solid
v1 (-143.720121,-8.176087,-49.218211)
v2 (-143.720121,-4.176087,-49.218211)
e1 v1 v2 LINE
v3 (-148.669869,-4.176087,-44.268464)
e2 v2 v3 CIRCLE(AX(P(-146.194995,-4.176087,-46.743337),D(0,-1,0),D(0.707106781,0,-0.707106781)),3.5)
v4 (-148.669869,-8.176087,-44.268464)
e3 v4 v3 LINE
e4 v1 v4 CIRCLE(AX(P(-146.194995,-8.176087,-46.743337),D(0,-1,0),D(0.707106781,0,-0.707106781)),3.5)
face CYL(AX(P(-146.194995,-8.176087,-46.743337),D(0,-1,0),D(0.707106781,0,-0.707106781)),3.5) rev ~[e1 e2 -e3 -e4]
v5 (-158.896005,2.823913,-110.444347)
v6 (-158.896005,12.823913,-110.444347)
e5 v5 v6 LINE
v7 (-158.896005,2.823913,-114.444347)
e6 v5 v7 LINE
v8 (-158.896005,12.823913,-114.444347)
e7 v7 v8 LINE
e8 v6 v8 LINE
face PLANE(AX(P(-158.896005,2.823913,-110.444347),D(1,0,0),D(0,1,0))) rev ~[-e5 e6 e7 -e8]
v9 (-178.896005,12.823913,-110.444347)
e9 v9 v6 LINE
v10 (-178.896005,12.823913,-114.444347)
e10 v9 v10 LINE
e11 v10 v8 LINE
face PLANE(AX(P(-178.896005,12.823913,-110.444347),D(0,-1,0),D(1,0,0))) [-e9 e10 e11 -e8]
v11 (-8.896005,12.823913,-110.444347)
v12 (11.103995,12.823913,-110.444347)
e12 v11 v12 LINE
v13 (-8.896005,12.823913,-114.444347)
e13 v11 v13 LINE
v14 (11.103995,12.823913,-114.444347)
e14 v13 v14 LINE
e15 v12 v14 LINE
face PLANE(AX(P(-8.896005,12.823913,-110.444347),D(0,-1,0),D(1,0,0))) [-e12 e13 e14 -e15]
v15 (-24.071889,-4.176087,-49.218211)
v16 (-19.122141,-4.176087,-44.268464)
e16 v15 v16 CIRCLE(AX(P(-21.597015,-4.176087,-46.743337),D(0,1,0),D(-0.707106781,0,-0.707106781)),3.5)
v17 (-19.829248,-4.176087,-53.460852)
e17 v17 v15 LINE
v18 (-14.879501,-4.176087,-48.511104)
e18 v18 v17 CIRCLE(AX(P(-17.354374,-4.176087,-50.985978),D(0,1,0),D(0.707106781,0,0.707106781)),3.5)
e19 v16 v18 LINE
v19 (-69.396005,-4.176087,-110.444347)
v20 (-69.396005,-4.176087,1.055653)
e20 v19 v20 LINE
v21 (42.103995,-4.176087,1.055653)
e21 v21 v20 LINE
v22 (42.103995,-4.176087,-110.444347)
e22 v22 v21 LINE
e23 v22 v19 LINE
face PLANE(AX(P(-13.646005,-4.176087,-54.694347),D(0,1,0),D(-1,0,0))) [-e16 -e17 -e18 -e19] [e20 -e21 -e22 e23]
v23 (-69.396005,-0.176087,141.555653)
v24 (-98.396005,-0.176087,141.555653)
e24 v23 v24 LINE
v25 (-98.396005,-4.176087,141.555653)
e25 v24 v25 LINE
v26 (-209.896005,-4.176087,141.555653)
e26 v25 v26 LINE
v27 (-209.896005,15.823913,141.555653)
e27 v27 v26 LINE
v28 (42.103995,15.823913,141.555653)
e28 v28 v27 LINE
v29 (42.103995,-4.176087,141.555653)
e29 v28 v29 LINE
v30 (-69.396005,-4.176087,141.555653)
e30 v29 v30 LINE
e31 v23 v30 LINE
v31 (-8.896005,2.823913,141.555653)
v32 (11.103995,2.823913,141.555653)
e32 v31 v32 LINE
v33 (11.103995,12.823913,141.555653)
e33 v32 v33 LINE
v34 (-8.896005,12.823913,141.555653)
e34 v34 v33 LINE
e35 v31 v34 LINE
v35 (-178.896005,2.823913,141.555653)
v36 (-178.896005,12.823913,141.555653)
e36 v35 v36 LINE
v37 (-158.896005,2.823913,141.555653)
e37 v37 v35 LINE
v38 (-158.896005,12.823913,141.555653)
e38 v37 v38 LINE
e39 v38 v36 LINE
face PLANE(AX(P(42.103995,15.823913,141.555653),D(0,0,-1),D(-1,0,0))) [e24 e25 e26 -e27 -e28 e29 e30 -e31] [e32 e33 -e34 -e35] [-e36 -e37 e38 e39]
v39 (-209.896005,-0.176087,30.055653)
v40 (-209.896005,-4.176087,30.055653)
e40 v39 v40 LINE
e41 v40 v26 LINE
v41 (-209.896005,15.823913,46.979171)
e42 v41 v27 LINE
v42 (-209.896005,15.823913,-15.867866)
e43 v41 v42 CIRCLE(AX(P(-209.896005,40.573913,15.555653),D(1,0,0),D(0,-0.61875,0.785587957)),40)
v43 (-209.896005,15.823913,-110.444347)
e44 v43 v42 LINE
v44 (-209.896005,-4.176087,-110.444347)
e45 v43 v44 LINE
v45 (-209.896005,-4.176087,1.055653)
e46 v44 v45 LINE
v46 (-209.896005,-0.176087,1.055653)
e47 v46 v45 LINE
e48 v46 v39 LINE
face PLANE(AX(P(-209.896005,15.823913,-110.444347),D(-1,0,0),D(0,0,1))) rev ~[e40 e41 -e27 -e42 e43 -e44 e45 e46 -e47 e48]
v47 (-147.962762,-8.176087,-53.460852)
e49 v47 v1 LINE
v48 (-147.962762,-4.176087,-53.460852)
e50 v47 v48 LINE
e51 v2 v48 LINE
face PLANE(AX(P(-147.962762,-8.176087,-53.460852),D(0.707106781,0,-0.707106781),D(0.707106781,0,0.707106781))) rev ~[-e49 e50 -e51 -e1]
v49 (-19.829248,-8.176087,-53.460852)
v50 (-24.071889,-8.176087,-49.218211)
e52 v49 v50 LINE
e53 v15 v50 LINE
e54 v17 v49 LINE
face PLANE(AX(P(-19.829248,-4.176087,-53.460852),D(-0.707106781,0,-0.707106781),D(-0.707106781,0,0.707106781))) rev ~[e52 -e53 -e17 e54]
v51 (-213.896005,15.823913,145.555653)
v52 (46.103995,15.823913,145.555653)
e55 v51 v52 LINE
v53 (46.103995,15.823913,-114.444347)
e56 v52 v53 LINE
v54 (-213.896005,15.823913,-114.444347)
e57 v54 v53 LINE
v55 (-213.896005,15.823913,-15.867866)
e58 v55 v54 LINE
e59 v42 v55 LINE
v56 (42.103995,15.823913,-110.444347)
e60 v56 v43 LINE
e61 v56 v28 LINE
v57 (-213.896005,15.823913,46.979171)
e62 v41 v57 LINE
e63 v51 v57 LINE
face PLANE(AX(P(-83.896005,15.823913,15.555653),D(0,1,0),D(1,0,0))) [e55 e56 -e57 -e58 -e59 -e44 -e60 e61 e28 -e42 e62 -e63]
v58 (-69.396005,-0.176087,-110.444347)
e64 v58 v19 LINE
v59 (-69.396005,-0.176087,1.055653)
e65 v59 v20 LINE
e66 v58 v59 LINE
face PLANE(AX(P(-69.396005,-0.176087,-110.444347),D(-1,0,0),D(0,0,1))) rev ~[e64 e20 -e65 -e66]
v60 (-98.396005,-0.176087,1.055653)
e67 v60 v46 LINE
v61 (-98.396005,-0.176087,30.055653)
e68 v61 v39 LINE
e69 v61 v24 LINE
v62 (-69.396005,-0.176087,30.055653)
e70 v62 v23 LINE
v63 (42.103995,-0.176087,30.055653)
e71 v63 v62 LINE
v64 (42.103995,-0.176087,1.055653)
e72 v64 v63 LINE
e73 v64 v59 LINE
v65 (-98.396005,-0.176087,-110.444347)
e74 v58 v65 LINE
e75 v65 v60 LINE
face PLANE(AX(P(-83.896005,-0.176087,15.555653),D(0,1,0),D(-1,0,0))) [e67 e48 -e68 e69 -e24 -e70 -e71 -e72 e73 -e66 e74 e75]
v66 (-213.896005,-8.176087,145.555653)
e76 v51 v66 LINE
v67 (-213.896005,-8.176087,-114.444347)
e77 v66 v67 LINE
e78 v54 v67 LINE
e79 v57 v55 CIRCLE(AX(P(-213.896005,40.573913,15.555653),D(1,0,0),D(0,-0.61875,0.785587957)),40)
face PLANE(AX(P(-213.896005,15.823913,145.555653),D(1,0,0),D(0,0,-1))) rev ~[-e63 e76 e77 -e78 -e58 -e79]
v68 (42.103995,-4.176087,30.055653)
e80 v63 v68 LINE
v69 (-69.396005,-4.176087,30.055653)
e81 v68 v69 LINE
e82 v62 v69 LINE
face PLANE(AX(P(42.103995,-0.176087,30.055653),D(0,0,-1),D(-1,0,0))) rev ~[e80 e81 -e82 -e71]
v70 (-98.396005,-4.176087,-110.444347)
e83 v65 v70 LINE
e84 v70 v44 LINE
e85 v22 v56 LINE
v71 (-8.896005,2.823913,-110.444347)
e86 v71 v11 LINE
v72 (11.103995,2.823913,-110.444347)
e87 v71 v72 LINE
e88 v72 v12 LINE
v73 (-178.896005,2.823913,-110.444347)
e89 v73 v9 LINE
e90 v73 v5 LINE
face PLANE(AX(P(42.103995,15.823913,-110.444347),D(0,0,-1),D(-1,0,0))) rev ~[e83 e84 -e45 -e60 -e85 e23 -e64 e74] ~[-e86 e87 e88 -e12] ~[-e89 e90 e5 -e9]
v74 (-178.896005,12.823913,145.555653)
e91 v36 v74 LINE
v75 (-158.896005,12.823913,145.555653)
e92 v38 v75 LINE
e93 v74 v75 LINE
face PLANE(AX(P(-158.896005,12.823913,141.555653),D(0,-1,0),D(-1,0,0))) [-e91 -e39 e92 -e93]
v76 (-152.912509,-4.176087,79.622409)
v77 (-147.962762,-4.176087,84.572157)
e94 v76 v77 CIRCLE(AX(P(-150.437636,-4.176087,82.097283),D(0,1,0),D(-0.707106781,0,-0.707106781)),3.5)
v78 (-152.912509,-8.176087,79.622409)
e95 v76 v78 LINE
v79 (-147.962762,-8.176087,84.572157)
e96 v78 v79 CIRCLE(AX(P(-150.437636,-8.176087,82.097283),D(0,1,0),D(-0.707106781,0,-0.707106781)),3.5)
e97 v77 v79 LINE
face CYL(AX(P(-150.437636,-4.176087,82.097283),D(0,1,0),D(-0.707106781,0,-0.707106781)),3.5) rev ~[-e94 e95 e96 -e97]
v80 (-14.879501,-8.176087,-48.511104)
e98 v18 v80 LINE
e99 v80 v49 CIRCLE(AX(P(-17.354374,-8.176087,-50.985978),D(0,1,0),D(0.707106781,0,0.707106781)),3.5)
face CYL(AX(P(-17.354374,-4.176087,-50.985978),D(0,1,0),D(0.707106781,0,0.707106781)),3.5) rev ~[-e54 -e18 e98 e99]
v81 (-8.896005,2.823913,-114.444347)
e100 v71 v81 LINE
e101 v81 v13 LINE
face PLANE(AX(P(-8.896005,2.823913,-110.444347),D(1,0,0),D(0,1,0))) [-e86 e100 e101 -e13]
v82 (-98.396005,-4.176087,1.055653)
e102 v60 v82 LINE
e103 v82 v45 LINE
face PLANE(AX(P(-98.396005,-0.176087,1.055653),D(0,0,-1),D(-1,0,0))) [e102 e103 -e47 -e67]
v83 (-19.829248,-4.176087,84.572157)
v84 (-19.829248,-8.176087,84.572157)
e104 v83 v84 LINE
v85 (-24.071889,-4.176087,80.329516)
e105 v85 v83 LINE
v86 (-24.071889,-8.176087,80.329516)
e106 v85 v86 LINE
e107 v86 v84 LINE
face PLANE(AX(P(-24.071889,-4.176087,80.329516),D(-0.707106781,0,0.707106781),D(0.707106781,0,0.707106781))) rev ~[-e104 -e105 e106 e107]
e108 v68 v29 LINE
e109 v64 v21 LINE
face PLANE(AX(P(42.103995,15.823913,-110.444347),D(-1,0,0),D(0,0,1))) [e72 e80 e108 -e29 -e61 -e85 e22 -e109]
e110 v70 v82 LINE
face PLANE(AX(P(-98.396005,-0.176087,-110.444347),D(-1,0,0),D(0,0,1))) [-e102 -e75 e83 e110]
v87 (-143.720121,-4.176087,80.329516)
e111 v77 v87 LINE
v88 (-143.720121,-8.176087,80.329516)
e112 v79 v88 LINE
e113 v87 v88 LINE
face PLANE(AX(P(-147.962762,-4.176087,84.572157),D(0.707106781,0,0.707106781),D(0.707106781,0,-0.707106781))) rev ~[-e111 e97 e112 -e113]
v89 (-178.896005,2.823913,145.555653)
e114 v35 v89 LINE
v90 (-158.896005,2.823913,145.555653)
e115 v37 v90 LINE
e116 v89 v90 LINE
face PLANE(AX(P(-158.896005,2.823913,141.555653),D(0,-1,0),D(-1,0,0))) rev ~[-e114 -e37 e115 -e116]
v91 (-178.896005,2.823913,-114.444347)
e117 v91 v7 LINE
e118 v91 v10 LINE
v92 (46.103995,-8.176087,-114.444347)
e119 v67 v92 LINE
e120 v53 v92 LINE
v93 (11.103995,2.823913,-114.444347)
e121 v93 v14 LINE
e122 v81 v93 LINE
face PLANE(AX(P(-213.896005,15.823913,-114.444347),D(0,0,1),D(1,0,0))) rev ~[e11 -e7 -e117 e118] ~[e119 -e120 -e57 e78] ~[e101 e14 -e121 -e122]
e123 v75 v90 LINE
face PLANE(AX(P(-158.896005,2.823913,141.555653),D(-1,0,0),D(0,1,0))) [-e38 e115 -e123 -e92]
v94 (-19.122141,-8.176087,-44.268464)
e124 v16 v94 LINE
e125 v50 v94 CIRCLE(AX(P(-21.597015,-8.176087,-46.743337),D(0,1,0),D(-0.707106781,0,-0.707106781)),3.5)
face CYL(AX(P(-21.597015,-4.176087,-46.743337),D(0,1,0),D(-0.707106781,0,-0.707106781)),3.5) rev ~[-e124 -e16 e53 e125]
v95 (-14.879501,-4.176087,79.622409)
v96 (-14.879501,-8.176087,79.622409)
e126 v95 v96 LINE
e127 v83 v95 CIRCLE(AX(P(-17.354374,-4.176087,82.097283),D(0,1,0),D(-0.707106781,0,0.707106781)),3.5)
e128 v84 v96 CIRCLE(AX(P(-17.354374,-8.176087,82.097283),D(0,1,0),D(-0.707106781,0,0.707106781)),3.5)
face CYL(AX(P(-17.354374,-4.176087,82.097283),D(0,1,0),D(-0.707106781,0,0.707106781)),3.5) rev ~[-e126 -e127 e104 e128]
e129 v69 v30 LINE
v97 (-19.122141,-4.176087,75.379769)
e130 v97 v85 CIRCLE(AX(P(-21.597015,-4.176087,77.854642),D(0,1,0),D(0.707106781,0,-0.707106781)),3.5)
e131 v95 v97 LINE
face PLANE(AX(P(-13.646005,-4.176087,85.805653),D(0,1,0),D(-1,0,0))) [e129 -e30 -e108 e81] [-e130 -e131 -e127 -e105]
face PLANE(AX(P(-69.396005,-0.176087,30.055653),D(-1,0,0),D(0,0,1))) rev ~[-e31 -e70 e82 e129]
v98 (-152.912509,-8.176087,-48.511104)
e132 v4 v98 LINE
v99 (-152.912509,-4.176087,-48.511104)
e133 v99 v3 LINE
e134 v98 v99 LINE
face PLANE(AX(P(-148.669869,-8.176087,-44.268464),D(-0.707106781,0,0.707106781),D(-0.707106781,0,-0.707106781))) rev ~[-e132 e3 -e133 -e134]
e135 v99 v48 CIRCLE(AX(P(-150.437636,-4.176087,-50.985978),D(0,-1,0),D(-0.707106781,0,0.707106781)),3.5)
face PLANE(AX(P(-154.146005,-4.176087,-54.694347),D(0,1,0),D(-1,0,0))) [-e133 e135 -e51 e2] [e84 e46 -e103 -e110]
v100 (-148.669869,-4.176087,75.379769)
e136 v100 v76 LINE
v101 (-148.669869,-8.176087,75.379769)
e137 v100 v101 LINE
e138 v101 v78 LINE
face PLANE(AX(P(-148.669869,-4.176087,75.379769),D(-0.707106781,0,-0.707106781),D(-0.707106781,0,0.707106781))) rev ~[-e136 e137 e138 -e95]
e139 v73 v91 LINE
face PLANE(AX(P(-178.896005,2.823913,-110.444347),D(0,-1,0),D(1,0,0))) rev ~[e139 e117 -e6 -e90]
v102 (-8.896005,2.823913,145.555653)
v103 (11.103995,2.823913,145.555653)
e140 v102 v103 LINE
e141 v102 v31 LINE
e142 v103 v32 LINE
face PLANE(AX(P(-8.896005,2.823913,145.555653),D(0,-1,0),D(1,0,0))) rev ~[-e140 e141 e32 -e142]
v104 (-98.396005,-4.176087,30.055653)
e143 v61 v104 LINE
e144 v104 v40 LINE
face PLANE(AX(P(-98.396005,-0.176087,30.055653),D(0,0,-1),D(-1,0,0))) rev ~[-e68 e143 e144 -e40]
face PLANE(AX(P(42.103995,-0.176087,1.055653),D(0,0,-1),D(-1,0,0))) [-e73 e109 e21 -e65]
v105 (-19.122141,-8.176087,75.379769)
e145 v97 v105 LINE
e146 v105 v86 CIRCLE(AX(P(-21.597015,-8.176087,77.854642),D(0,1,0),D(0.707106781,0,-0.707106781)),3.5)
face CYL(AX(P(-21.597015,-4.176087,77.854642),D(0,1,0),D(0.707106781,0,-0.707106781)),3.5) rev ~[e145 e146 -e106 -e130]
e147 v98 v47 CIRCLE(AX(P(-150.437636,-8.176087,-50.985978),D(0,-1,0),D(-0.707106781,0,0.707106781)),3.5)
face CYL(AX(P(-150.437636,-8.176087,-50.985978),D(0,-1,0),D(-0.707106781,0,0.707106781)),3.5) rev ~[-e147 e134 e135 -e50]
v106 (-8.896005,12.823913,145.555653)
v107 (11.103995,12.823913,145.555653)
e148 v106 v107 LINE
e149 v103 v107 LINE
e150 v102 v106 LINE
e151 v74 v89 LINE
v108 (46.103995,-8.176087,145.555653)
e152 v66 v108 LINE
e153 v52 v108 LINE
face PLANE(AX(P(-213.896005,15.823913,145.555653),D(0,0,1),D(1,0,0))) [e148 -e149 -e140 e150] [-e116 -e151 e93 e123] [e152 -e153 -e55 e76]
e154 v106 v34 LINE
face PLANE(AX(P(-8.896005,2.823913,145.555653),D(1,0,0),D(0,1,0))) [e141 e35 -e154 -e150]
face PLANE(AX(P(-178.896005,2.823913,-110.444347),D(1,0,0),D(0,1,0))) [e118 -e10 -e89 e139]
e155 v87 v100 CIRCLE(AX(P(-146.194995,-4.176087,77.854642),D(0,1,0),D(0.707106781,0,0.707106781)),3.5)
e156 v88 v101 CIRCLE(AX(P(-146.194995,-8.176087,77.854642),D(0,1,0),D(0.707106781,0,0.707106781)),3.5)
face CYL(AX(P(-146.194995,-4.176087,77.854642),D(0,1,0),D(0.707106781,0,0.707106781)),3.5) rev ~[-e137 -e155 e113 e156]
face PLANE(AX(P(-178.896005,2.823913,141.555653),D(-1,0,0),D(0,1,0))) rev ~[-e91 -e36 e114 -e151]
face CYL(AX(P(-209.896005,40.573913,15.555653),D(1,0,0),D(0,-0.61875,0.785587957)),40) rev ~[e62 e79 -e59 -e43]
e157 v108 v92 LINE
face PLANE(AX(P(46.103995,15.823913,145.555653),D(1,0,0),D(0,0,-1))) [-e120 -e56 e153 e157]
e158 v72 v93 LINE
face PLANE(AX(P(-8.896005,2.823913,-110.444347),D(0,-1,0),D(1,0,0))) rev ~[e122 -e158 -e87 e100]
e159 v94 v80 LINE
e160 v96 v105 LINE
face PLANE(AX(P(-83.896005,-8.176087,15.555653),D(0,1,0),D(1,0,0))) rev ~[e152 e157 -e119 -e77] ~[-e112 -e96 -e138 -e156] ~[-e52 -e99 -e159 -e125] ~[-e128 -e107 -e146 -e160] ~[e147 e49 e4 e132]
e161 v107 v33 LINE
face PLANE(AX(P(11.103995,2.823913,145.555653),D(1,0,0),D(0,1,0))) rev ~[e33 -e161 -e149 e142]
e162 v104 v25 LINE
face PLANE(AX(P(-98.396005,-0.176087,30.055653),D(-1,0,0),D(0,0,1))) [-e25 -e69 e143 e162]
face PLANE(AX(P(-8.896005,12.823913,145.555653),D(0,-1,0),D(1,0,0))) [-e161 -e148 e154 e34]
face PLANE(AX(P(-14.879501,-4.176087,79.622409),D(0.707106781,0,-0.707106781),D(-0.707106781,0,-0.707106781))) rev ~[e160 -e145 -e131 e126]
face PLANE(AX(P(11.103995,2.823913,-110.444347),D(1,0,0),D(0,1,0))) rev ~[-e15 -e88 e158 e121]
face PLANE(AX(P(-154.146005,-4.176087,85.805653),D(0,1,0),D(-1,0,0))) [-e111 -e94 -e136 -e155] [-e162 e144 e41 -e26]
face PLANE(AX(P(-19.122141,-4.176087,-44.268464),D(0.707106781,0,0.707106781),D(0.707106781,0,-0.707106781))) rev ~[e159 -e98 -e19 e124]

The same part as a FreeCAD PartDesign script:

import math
import FreeCAD as App
import Part
import Sketcher

V = App.Vector
Q = App.Units.Quantity

doc = App.newDocument("Part")
params = doc.addObject("Spreadsheet::Sheet", "Params")
for row, (alias, value) in enumerate([
    ("sketch1_width", "260 mm"),
    ("pad1_length", "24 mm"),
    ("sketch2_width", "252 mm"),
    ("pocket1_length", "16 mm"),
    ("sketch3_width", "111.5 mm"),
    ("pocket2_length", "4 mm"),
    ("sketch4_width", "111.5 mm"),
    ("pocket3_length", "4 mm"),
    ("sketch5_width", "111.5 mm"),
    ("pocket4_length", "4 mm"),
    ("sketch6_width", "111.5 mm"),
    ("pocket5_length", "4 mm"),
    ("sketch7_radius", "40 mm"),
    ("sketch8_width", "20 mm"),
    ("sketch8_height", "10 mm"),
    ("sketch9_radius", "3.5 mm"),
    ("sketch9_length", "6 mm"),
    ("sketch10_radius", "3.5 mm"),
    ("sketch10_length", "6 mm"),
    ("sketch11_width", "20 mm"),
    ("sketch11_height", "10 mm"),
    ("sketch12_width", "20 mm"),
    ("sketch12_height", "10 mm"),
    ("sketch13_radius", "3.5 mm"),
    ("sketch13_length", "6 mm"),
    ("sketch14_width", "20 mm"),
    ("sketch14_height", "10 mm"),
    ("sketch15_radius", "3.5 mm"),
    ("sketch15_length", "6 mm"),
], start=1):
    params.set(f"A{row}", alias)
    params.set(f"B{row}", "=" + value)
    params.setAlias(f"B{row}", alias)

body = doc.addObject("PartDesign::Body", "Body")

sketch1 = body.newObject("Sketcher::SketchObject", "Sketch")
sketch1.AttachmentSupport = (doc.getObject("XZ_Plane"), [""])
sketch1.MapMode = "FlatFace"
sketch1.AttachmentOffset = App.Placement(V(0, 0, -15.823913), App.Rotation())
sketch1.addGeometry([
    Part.LineSegment(V(-213.896005, -114.444347, 0), V(-213.896005, 145.555653, 0)),
    Part.LineSegment(V(-213.896005, 145.555653, 0), V(46.103995, 145.555653, 0)),
    Part.LineSegment(V(46.103995, 145.555653, 0), V(46.103995, -114.444347, 0)),
    Part.LineSegment(V(46.103995, -114.444347, 0), V(-213.896005, -114.444347, 0)),
], False)
sketch1.addConstraint([
    Sketcher.Constraint("Coincident", 0, 2, 1, 1),
    Sketcher.Constraint("Coincident", 1, 2, 2, 1),
    Sketcher.Constraint("Coincident", 2, 2, 3, 1),
    Sketcher.Constraint("Coincident", 3, 2, 0, 1),
    Sketcher.Constraint("Vertical", 0),
    Sketcher.Constraint("Horizontal", 1),
    Sketcher.Constraint("Vertical", 2),
    Sketcher.Constraint("Horizontal", 3),
    Sketcher.Constraint("Equal", 3, 0),
    Sketcher.Constraint("DistanceX", 1, 1, 1, 2, Q("260 mm")),
    Sketcher.Constraint("DistanceX", 0, 2, -1, 1, Q("213.896005 mm")),
    Sketcher.Constraint("DistanceY", -1, 1, 0, 2, Q("145.555653 mm")),
])
sketch1.setExpression("Constraints[9]", "Params.sketch1_width")
pad1 = body.newObject("PartDesign::Pad", "Pad")
pad1.Profile = sketch1
pad1.setExpression("Length", "Params.pad1_length")

sketch2 = body.newObject("Sketcher::SketchObject", "Sketch001")
sketch2.AttachmentSupport = (doc.getObject("XZ_Plane"), [""])
sketch2.MapMode = "FlatFace"
sketch2.AttachmentOffset = App.Placement(V(0, 0, -15.823913), App.Rotation())
sketch2.addGeometry([
    Part.LineSegment(V(42.103995, 141.555653, 0), V(42.103995, -110.444347, 0)),
    Part.LineSegment(V(42.103995, -110.444347, 0), V(-209.896005, -110.444347, 0)),
    Part.LineSegment(V(-209.896005, -110.444347, 0), V(-209.896005, 141.555653, 0)),
    Part.LineSegment(V(-209.896005, 141.555653, 0), V(42.103995, 141.555653, 0)),
], False)
sketch2.addConstraint([
    Sketcher.Constraint("Coincident", 0, 2, 1, 1),
    Sketcher.Constraint("Coincident", 1, 2, 2, 1),
    Sketcher.Constraint("Coincident", 2, 2, 3, 1),
    Sketcher.Constraint("Coincident", 3, 2, 0, 1),
    Sketcher.Constraint("Vertical", 0),
    Sketcher.Constraint("Horizontal", 1),
    Sketcher.Constraint("Vertical", 2),
    Sketcher.Constraint("Horizontal", 3),
    Sketcher.Constraint("Equal", 3, 0),
    Sketcher.Constraint("DistanceX", 1, 2, 1, 1, Q("252 mm")),
    Sketcher.Constraint("DistanceX", -1, 1, 0, 2, Q("42.103995 mm")),
    Sketcher.Constraint("DistanceY", 0, 2, -1, 1, Q("110.444347 mm")),
])
sketch2.setExpression("Constraints[9]", "Params.sketch2_width")
pocket1 = body.newObject("PartDesign::Pocket", "Pocket")
pocket1.Profile = sketch2
pocket1.setExpression("Length", "Params.pocket1_length")
pocket1.Reversed = True

sketch3 = body.newObject("Sketcher::SketchObject", "Sketch002")
sketch3.AttachmentSupport = (doc.getObject("XZ_Plane"), [""])
sketch3.MapMode = "FlatFace"
sketch3.AttachmentOffset = App.Placement(V(0, 0, 0.176087), App.Rotation())
sketch3.addGeometry([
    Part.LineSegment(V(42.103995, 141.555653, 0), V(42.103995, 30.055653, 0)),
    Part.LineSegment(V(42.103995, 30.055653, 0), V(-69.396005, 30.055653, 0)),
    Part.LineSegment(V(-69.396005, 30.055653, 0), V(-69.396005, 141.555653, 0)),
    Part.LineSegment(V(-69.396005, 141.555653, 0), V(42.103995, 141.555653, 0)),
], False)
sketch3.addConstraint([
    Sketcher.Constraint("Coincident", 0, 2, 1, 1),
    Sketcher.Constraint("Coincident", 1, 2, 2, 1),
    Sketcher.Constraint("Coincident", 2, 2, 3, 1),
    Sketcher.Constraint("Coincident", 3, 2, 0, 1),
    Sketcher.Constraint("Vertical", 0),
    Sketcher.Constraint("Horizontal", 1),
    Sketcher.Constraint("Vertical", 2),
    Sketcher.Constraint("Horizontal", 3),
    Sketcher.Constraint("Equal", 3, 0),
    Sketcher.Constraint("DistanceX", 1, 2, 1, 1, Q("111.5 mm")),
    Sketcher.Constraint("DistanceX", -1, 1, 0, 2, Q("42.103995 mm")),
    Sketcher.Constraint("DistanceY", -1, 1, 0, 2, Q("30.055653 mm")),
])
sketch3.setExpression("Constraints[9]", "Params.sketch3_width")
pocket2 = body.newObject("PartDesign::Pocket", "Pocket001")
pocket2.Profile = sketch3
pocket2.setExpression("Length", "Params.pocket2_length")
pocket2.Reversed = True

sketch4 = body.newObject("Sketcher::SketchObject", "Sketch003")
sketch4.AttachmentSupport = (doc.getObject("XZ_Plane"), [""])
sketch4.MapMode = "FlatFace"
sketch4.AttachmentOffset = App.Placement(V(0, 0, 0.176087), App.Rotation())
sketch4.addGeometry([
    Part.LineSegment(V(-98.396005, 141.555653, 0), V(-98.396005, 30.055653, 0)),
    Part.LineSegment(V(-98.396005, 30.055653, 0), V(-209.896005, 30.055653, 0)),
    Part.LineSegment(V(-209.896005, 30.055653, 0), V(-209.896005, 141.555653, 0)),
    Part.LineSegment(V(-209.896005, 141.555653, 0), V(-98.396005, 141.555653, 0)),
], False)
sketch4.addConstraint([
    Sketcher.Constraint("Coincident", 0, 2, 1, 1),
    Sketcher.Constraint("Coincident", 1, 2, 2, 1),
    Sketcher.Constraint("Coincident", 2, 2, 3, 1),
    Sketcher.Constraint("Coincident", 3, 2, 0, 1),
    Sketcher.Constraint("Vertical", 0),
    Sketcher.Constraint("Horizontal", 1),
    Sketcher.Constraint("Vertical", 2),
    Sketcher.Constraint("Horizontal", 3),
    Sketcher.Constraint("Equal", 3, 0),
    Sketcher.Constraint("DistanceX", 1, 2, 1, 1, Q("111.5 mm")),
    Sketcher.Constraint("DistanceX", 0, 2, -1, 1, Q("98.396005 mm")),
    Sketcher.Constraint("DistanceY", -1, 1, 0, 2, Q("30.055653 mm")),
])
sketch4.setExpression("Constraints[9]", "Params.sketch4_width")
pocket3 = body.newObject("PartDesign::Pocket", "Pocket002")
pocket3.Profile = sketch4
pocket3.setExpression("Length", "Params.pocket3_length")
pocket3.Reversed = True

sketch5 = body.newObject("Sketcher::SketchObject", "Sketch004")
sketch5.AttachmentSupport = (doc.getObject("XZ_Plane"), [""])
sketch5.MapMode = "FlatFace"
sketch5.AttachmentOffset = App.Placement(V(0, 0, 0.176087), App.Rotation())
sketch5.addGeometry([
    Part.LineSegment(V(-98.396005, 1.055653, 0), V(-98.396005, -110.444347, 0)),
    Part.LineSegment(V(-98.396005, -110.444347, 0), V(-209.896005, -110.444347, 0)),
    Part.LineSegment(V(-209.896005, -110.444347, 0), V(-209.896005, 1.055653, 0)),
    Part.LineSegment(V(-209.896005, 1.055653, 0), V(-98.396005, 1.055653, 0)),
], False)
sketch5.addConstraint([
    Sketcher.Constraint("Coincident", 0, 2, 1, 1),
    Sketcher.Constraint("Coincident", 1, 2, 2, 1),
    Sketcher.Constraint("Coincident", 2, 2, 3, 1),
    Sketcher.Constraint("Coincident", 3, 2, 0, 1),
    Sketcher.Constraint("Vertical", 0),
    Sketcher.Constraint("Horizontal", 1),
    Sketcher.Constraint("Vertical", 2),
    Sketcher.Constraint("Horizontal", 3),
    Sketcher.Constraint("Equal", 3, 0),
    Sketcher.Constraint("DistanceX", 1, 2, 1, 1, Q("111.5 mm")),
    Sketcher.Constraint("DistanceX", 0, 2, -1, 1, Q("98.396005 mm")),
    Sketcher.Constraint("DistanceY", 0, 2, -1, 1, Q("110.444347 mm")),
])
sketch5.setExpression("Constraints[9]", "Params.sketch5_width")
pocket4 = body.newObject("PartDesign::Pocket", "Pocket003")
pocket4.Profile = sketch5
pocket4.setExpression("Length", "Params.pocket4_length")
pocket4.Reversed = True

sketch6 = body.newObject("Sketcher::SketchObject", "Sketch005")
sketch6.AttachmentSupport = (doc.getObject("XZ_Plane"), [""])
sketch6.MapMode = "FlatFace"
sketch6.AttachmentOffset = App.Placement(V(0, 0, 0.176087), App.Rotation())
sketch6.addGeometry([
    Part.LineSegment(V(42.103995, 1.055653, 0), V(42.103995, -110.444347, 0)),
    Part.LineSegment(V(42.103995, -110.444347, 0), V(-69.396005, -110.444347, 0)),
    Part.LineSegment(V(-69.396005, -110.444347, 0), V(-69.396005, 1.055653, 0)),
    Part.LineSegment(V(-69.396005, 1.055653, 0), V(42.103995, 1.055653, 0)),
], False)
sketch6.addConstraint([
    Sketcher.Constraint("Coincident", 0, 2, 1, 1),
    Sketcher.Constraint("Coincident", 1, 2, 2, 1),
    Sketcher.Constraint("Coincident", 2, 2, 3, 1),
    Sketcher.Constraint("Coincident", 3, 2, 0, 1),
    Sketcher.Constraint("Vertical", 0),
    Sketcher.Constraint("Horizontal", 1),
    Sketcher.Constraint("Vertical", 2),
    Sketcher.Constraint("Horizontal", 3),
    Sketcher.Constraint("Equal", 3, 0),
    Sketcher.Constraint("DistanceX", 1, 2, 1, 1, Q("111.5 mm")),
    Sketcher.Constraint("DistanceX", -1, 1, 0, 2, Q("42.103995 mm")),
    Sketcher.Constraint("DistanceY", 0, 2, -1, 1, Q("110.444347 mm")),
])
sketch6.setExpression("Constraints[9]", "Params.sketch6_width")
pocket5 = body.newObject("PartDesign::Pocket", "Pocket004")
pocket5.Profile = sketch6
pocket5.setExpression("Length", "Params.pocket5_length")
pocket5.Reversed = True

sketch7 = body.newObject("Sketcher::SketchObject", "Sketch006")
sketch7.AttachmentSupport = (doc.getObject("YZ_Plane"), [""])
sketch7.MapMode = "FlatFace"
sketch7.AttachmentOffset = App.Placement(V(0, 0, -209.896005), App.Rotation())
sketch7.addGeometry([
    Part.LineSegment(V(15.823913, -15.867866, 0), V(15.823913, 46.979171, 0)),
    Part.ArcOfCircle(Part.Circle(V(40.573913, 15.555653, 0), V(0, 0, 1), 40), math.radians(128.22491), math.radians(231.77509)),
], False)
sketch7.addConstraint([
    Sketcher.Constraint("Coincident", 0, 1, 1, 2),
    Sketcher.Constraint("Coincident", 1, 1, 0, 2),
    Sketcher.Constraint("Vertical", 0),
    Sketcher.Constraint("Radius", 1, Q("40 mm")),
    Sketcher.Constraint("DistanceX", 0, 1, 1, 3, Q("24.75 mm")),
    Sketcher.Constraint("DistanceY", -1, 1, 1, 1, Q("46.979171 mm")),
    Sketcher.Constraint("DistanceX", -1, 1, 1, 3, Q("40.573913 mm")),
])
sketch7.setExpression("Constraints[3]", "Params.sketch7_radius")
pocket6 = body.newObject("PartDesign::Pocket", "Pocket005")
pocket6.Profile = sketch7
pocket6.Type = "ThroughAll"

sketch8 = body.newObject("Sketcher::SketchObject", "Sketch007")
sketch8.AttachmentSupport = (doc.getObject("XY_Plane"), [""])
sketch8.MapMode = "FlatFace"
sketch8.AttachmentOffset = App.Placement(V(0, 0, 141.555653), App.Rotation())
sketch8.addGeometry([
    Part.LineSegment(V(-158.896005, 12.823913, 0), V(-158.896005, 2.823913, 0)),
    Part.LineSegment(V(-158.896005, 2.823913, 0), V(-178.896005, 2.823913, 0)),
    Part.LineSegment(V(-178.896005, 2.823913, 0), V(-178.896005, 12.823913, 0)),
    Part.LineSegment(V(-178.896005, 12.823913, 0), V(-158.896005, 12.823913, 0)),
], False)
sketch8.addConstraint([
    Sketcher.Constraint("Coincident", 0, 2, 1, 1),
    Sketcher.Constraint("Coincident", 1, 2, 2, 1),
    Sketcher.Constraint("Coincident", 2, 2, 3, 1),
    Sketcher.Constraint("Coincident", 3, 2, 0, 1),
    Sketcher.Constraint("Vertical", 0),
    Sketcher.Constraint("Horizontal", 1),
    Sketcher.Constraint("Vertical", 2),
    Sketcher.Constraint("Horizontal", 3),
    Sketcher.Constraint("DistanceX", 1, 2, 1, 1, Q("20 mm")),
    Sketcher.Constraint("DistanceY", 0, 2, 0, 1, Q("10 mm")),
    Sketcher.Constraint("DistanceX", 0, 2, -1, 1, Q("158.896005 mm")),
    Sketcher.Constraint("DistanceY", -1, 1, 0, 2, Q("2.823913 mm")),
])
sketch8.setExpression("Constraints[8]", "Params.sketch8_width")
sketch8.setExpression("Constraints[9]", "Params.sketch8_height")
pocket7 = body.newObject("PartDesign::Pocket", "Pocket006")
pocket7.Profile = sketch8
pocket7.Type = "ThroughAll"
pocket7.Reversed = True

sketch9 = body.newObject("Sketcher::SketchObject", "Sketch008")
sketch9.AttachmentSupport = (doc.getObject("XZ_Plane"), [""])
sketch9.MapMode = "FlatFace"
sketch9.AttachmentOffset = App.Placement(V(0, 0, 4.176087), App.Rotation())
sketch9.addGeometry([
    Part.LineSegment(V(-24.071889, 80.329516, 0), V(-19.829248, 84.572157, 0)),
    Part.ArcOfCircle(Part.Circle(V(-17.354374, 82.097283, 0), V(0, 0, 1), 3.5), math.radians(-45), math.radians(135)),
    Part.LineSegment(V(-14.879501, 79.622409, 0), V(-19.122141, 75.379769, 0)),
    Part.ArcOfCircle(Part.Circle(V(-21.597015, 77.854642, 0), V(0, 0, 1), 3.5), math.radians(135), math.radians(315)),
], False)
sketch9.addConstraint([
    Sketcher.Constraint("Tangent", 0, 2, 1, 2),
    Sketcher.Constraint("Tangent", 1, 1, 2, 1),
    Sketcher.Constraint("Tangent", 2, 2, 3, 2),
    Sketcher.Constraint("Tangent", 3, 1, 0, 1),
    Sketcher.Constraint("Equal", 1, 3),
    Sketcher.Constraint("Radius", 1, Q("3.5 mm")),
    Sketcher.Constraint("Angle", 0, Q("45 deg")),
    Sketcher.Constraint("Distance", 0, Q("6 mm")),
    Sketcher.Constraint("DistanceX", 1, 1, -1, 1, Q("14.879501 mm")),
    Sketcher.Constraint("DistanceY", -1, 1, 1, 1, Q("79.622409 mm")),
])
sketch9.setExpression("Constraints[5]", "Params.sketch9_radius")
sketch9.setExpression("Constraints[7]", "Params.sketch9_length")
pocket8 = body.newObject("PartDesign::Pocket", "Pocket007")
pocket8.Profile = sketch9
pocket8.Type = "ThroughAll"
pocket8.Reversed = True

sketch10 = body.newObject("Sketcher::SketchObject", "Sketch009")
sketch10.AttachmentSupport = (doc.getObject("XZ_Plane"), [""])
sketch10.MapMode = "FlatFace"
sketch10.AttachmentOffset = App.Placement(V(0, 0, 4.176087), App.Rotation())
sketch10.addGeometry([
    Part.LineSegment(V(-147.962762, 84.572157, 0), V(-143.720121, 80.329516, 0)),
    Part.ArcOfCircle(Part.Circle(V(-146.194995, 77.854642, 0), V(0, 0, 1), 3.5), math.radians(-135), math.radians(45)),
    Part.LineSegment(V(-148.669869, 75.379769, 0), V(-152.912509, 79.622409, 0)),
    Part.ArcOfCircle(Part.Circle(V(-150.437636, 82.097283, 0), V(0, 0, 1), 3.5), math.radians(45), math.radians(225)),
], False)
sketch10.addConstraint([
    Sketcher.Constraint("Tangent", 0, 2, 1, 2),
    Sketcher.Constraint("Tangent", 1, 1, 2, 1),
    Sketcher.Constraint("Tangent", 2, 2, 3, 2),
    Sketcher.Constraint("Tangent", 3, 1, 0, 1),
    Sketcher.Constraint("Equal", 1, 3),
    Sketcher.Constraint("Radius", 1, Q("3.5 mm")),
    Sketcher.Constraint("Angle", 0, Q("-45 deg")),
    Sketcher.Constraint("Distance", 0, Q("6 mm")),
    Sketcher.Constraint("DistanceX", 0, 2, -1, 1, Q("143.720121 mm")),
    Sketcher.Constraint("DistanceY", -1, 1, 1, 1, Q("75.379769 mm")),
])
sketch10.setExpression("Constraints[5]", "Params.sketch10_radius")
sketch10.setExpression("Constraints[7]", "Params.sketch10_length")
pocket9 = body.newObject("PartDesign::Pocket", "Pocket008")
pocket9.Profile = sketch10
pocket9.Type = "ThroughAll"
pocket9.Reversed = True

sketch11 = body.newObject("Sketcher::SketchObject", "Sketch010")
sketch11.AttachmentSupport = (doc.getObject("XY_Plane"), [""])
sketch11.MapMode = "FlatFace"
sketch11.AttachmentOffset = App.Placement(V(0, 0, 145.555653), App.Rotation())
sketch11.addGeometry([
    Part.LineSegment(V(-8.896005, 12.823913, 0), V(-8.896005, 2.823913, 0)),
    Part.LineSegment(V(-8.896005, 2.823913, 0), V(11.103995, 2.823913, 0)),
    Part.LineSegment(V(11.103995, 2.823913, 0), V(11.103995, 12.823913, 0)),
    Part.LineSegment(V(11.103995, 12.823913, 0), V(-8.896005, 12.823913, 0)),
], False)
sketch11.addConstraint([
    Sketcher.Constraint("Coincident", 0, 2, 1, 1),
    Sketcher.Constraint("Coincident", 1, 2, 2, 1),
    Sketcher.Constraint("Coincident", 2, 2, 3, 1),
    Sketcher.Constraint("Coincident", 3, 2, 0, 1),
    Sketcher.Constraint("Vertical", 0),
    Sketcher.Constraint("Horizontal", 1),
    Sketcher.Constraint("Vertical", 2),
    Sketcher.Constraint("Horizontal", 3),
    Sketcher.Constraint("DistanceX", 1, 1, 1, 2, Q("20 mm")),
    Sketcher.Constraint("DistanceY", 0, 2, 0, 1, Q("10 mm")),
    Sketcher.Constraint("DistanceX", 0, 2, -1, 1, Q("8.896005 mm")),
    Sketcher.Constraint("DistanceY", -1, 1, 0, 2, Q("2.823913 mm")),
])
sketch11.setExpression("Constraints[8]", "Params.sketch11_width")
sketch11.setExpression("Constraints[9]", "Params.sketch11_height")
pocket10 = body.newObject("PartDesign::Pocket", "Pocket009")
pocket10.Profile = sketch11
pocket10.Type = "UpToFirst"

sketch12 = body.newObject("Sketcher::SketchObject", "Sketch011")
sketch12.AttachmentSupport = (doc.getObject("XY_Plane"), [""])
sketch12.MapMode = "FlatFace"
sketch12.AttachmentOffset = App.Placement(V(0, 0, -110.444347), App.Rotation())
sketch12.addGeometry([
    Part.LineSegment(V(-178.896005, 12.823913, 0), V(-178.896005, 2.823913, 0)),
    Part.LineSegment(V(-178.896005, 2.823913, 0), V(-158.896005, 2.823913, 0)),
    Part.LineSegment(V(-158.896005, 2.823913, 0), V(-158.896005, 12.823913, 0)),
    Part.LineSegment(V(-158.896005, 12.823913, 0), V(-178.896005, 12.823913, 0)),
], False)
sketch12.addConstraint([
    Sketcher.Constraint("Coincident", 0, 2, 1, 1),
    Sketcher.Constraint("Coincident", 1, 2, 2, 1),
    Sketcher.Constraint("Coincident", 2, 2, 3, 1),
    Sketcher.Constraint("Coincident", 3, 2, 0, 1),
    Sketcher.Constraint("Vertical", 0),
    Sketcher.Constraint("Horizontal", 1),
    Sketcher.Constraint("Vertical", 2),
    Sketcher.Constraint("Horizontal", 3),
    Sketcher.Constraint("DistanceX", 1, 1, 1, 2, Q("20 mm")),
    Sketcher.Constraint("DistanceY", 0, 2, 0, 1, Q("10 mm")),
    Sketcher.Constraint("DistanceX", 0, 2, -1, 1, Q("178.896005 mm")),
    Sketcher.Constraint("DistanceY", -1, 1, 0, 2, Q("2.823913 mm")),
])
sketch12.setExpression("Constraints[8]", "Params.sketch12_width")
sketch12.setExpression("Constraints[9]", "Params.sketch12_height")
pocket11 = body.newObject("PartDesign::Pocket", "Pocket010")
pocket11.Profile = sketch12
pocket11.Type = "ThroughAll"

sketch13 = body.newObject("Sketcher::SketchObject", "Sketch012")
sketch13.AttachmentSupport = (doc.getObject("XZ_Plane"), [""])
sketch13.MapMode = "FlatFace"
sketch13.AttachmentOffset = App.Placement(V(0, 0, 4.176087), App.Rotation())
sketch13.addGeometry([
    Part.LineSegment(V(-19.829248, -53.460852, 0), V(-24.071889, -49.218211, 0)),
    Part.ArcOfCircle(Part.Circle(V(-21.597015, -46.743337, 0), V(0, 0, 1), 3.5), math.radians(45), math.radians(225)),
    Part.LineSegment(V(-19.122141, -44.268464, 0), V(-14.879501, -48.511104, 0)),
    Part.ArcOfCircle(Part.Circle(V(-17.354374, -50.985978, 0), V(0, 0, 1), 3.5), math.radians(-135), math.radians(45)),
], False)
sketch13.addConstraint([
    Sketcher.Constraint("Tangent", 0, 2, 1, 2),
    Sketcher.Constraint("Tangent", 1, 1, 2, 1),
    Sketcher.Constraint("Tangent", 2, 2, 3, 2),
    Sketcher.Constraint("Tangent", 3, 1, 0, 1),
    Sketcher.Constraint("Equal", 1, 3),
    Sketcher.Constraint("Radius", 1, Q("3.5 mm")),
    Sketcher.Constraint("Angle", 0, Q("135 deg")),
    Sketcher.Constraint("Distance", 0, Q("6 mm")),
    Sketcher.Constraint("DistanceX", 2, 2, -1, 1, Q("14.879501 mm")),
    Sketcher.Constraint("DistanceY", 3, 3, -1, 1, Q("50.985978 mm")),
])
sketch13.setExpression("Constraints[5]", "Params.sketch13_radius")
sketch13.setExpression("Constraints[7]", "Params.sketch13_length")
pocket12 = body.newObject("PartDesign::Pocket", "Pocket011")
pocket12.Profile = sketch13
pocket12.Type = "ThroughAll"
pocket12.Reversed = True

sketch14 = body.newObject("Sketcher::SketchObject", "Sketch013")
sketch14.AttachmentSupport = (doc.getObject("XY_Plane"), [""])
sketch14.MapMode = "FlatFace"
sketch14.AttachmentOffset = App.Placement(V(0, 0, -110.444347), App.Rotation())
sketch14.addGeometry([
    Part.LineSegment(V(-8.896005, 12.823913, 0), V(-8.896005, 2.823913, 0)),
    Part.LineSegment(V(-8.896005, 2.823913, 0), V(11.103995, 2.823913, 0)),
    Part.LineSegment(V(11.103995, 2.823913, 0), V(11.103995, 12.823913, 0)),
    Part.LineSegment(V(11.103995, 12.823913, 0), V(-8.896005, 12.823913, 0)),
], False)
sketch14.addConstraint([
    Sketcher.Constraint("Coincident", 0, 2, 1, 1),
    Sketcher.Constraint("Coincident", 1, 2, 2, 1),
    Sketcher.Constraint("Coincident", 2, 2, 3, 1),
    Sketcher.Constraint("Coincident", 3, 2, 0, 1),
    Sketcher.Constraint("Vertical", 0),
    Sketcher.Constraint("Horizontal", 1),
    Sketcher.Constraint("Vertical", 2),
    Sketcher.Constraint("Horizontal", 3),
    Sketcher.Constraint("DistanceX", 1, 1, 1, 2, Q("20 mm")),
    Sketcher.Constraint("DistanceY", 0, 2, 0, 1, Q("10 mm")),
    Sketcher.Constraint("DistanceX", 0, 2, -1, 1, Q("8.896005 mm")),
    Sketcher.Constraint("DistanceY", -1, 1, 0, 2, Q("2.823913 mm")),
])
sketch14.setExpression("Constraints[8]", "Params.sketch14_width")
sketch14.setExpression("Constraints[9]", "Params.sketch14_height")
pocket13 = body.newObject("PartDesign::Pocket", "Pocket012")
pocket13.Profile = sketch14
pocket13.Type = "ThroughAll"

sketch15 = body.newObject("Sketcher::SketchObject", "Sketch014")
sketch15.AttachmentSupport = (doc.getObject("XZ_Plane"), [""])
sketch15.MapMode = "FlatFace"
sketch15.AttachmentOffset = App.Placement(V(0, 0, 8.176087), App.Rotation())
sketch15.addGeometry([
    Part.LineSegment(V(-148.669869, -44.268464, 0), V(-152.912509, -48.511104, 0)),
    Part.ArcOfCircle(Part.Circle(V(-150.437636, -50.985978, 0), V(0, 0, 1), 3.5), math.radians(135), math.radians(315)),
    Part.LineSegment(V(-147.962762, -53.460852, 0), V(-143.720121, -49.218211, 0)),
    Part.ArcOfCircle(Part.Circle(V(-146.194995, -46.743337, 0), V(0, 0, 1), 3.5), math.radians(-45), math.radians(135)),
], False)
sketch15.addConstraint([
    Sketcher.Constraint("Tangent", 0, 2, 1, 1),
    Sketcher.Constraint("Tangent", 1, 2, 2, 1),
    Sketcher.Constraint("Tangent", 2, 2, 3, 1),
    Sketcher.Constraint("Tangent", 3, 2, 0, 1),
    Sketcher.Constraint("Equal", 1, 3),
    Sketcher.Constraint("Radius", 1, Q("3.5 mm")),
    Sketcher.Constraint("Angle", 0, Q("-135 deg")),
    Sketcher.Constraint("Distance", 0, Q("6 mm")),
    Sketcher.Constraint("DistanceY", 1, 3, -1, 1, Q("50.985978 mm")),
    Sketcher.Constraint("DistanceX", 0, 2, -1, 1, Q("152.912509 mm")),
])
sketch15.setExpression("Constraints[5]", "Params.sketch15_radius")
sketch15.setExpression("Constraints[7]", "Params.sketch15_length")
pocket14 = body.newObject("PartDesign::Pocket", "Pocket013")
pocket14.Profile = sketch15
pocket14.Type = "ThroughAll"

doc.recompute()
